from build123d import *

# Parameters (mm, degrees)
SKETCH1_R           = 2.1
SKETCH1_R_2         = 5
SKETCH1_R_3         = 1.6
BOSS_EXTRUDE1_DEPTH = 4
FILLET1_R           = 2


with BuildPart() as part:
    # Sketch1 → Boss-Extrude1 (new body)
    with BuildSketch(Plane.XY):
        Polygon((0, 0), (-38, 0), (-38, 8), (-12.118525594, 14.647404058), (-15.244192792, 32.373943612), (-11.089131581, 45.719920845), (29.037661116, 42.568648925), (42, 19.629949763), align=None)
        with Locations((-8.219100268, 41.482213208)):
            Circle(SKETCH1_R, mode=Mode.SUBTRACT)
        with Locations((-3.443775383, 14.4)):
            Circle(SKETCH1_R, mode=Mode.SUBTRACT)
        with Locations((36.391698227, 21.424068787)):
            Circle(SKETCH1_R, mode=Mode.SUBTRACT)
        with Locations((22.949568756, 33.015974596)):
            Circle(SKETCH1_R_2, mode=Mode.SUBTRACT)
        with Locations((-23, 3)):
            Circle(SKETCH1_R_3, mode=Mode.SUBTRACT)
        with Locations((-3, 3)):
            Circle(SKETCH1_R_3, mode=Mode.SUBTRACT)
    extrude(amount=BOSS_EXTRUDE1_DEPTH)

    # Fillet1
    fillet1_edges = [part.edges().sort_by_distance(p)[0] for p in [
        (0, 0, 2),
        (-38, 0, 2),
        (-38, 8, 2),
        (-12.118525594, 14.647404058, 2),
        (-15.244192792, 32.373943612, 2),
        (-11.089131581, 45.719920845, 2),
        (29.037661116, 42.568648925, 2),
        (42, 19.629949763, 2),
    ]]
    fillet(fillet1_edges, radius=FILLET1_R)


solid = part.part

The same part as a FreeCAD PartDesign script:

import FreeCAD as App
import Part
import Sketcher

V = App.Vector
Q = App.Units.Quantity


def edges_at(feature, points):
    """Names of the edges that pass closest to the given points."""
    edges = feature.Shape.Edges
    near = lambda p: min(range(len(edges)), key=lambda i: edges[i].distToShape(Part.Vertex(*p))[0])
    return sorted({f"Edge{near(p) + 1}" for p in points})

doc = App.newDocument("Part")
body = doc.addObject("PartDesign::Body", "Body")

# Sketch on XY plane
sketch1 = body.newObject("Sketcher::SketchObject", "Sketch")
sketch1.AttachmentSupport = (doc.getObject("XY_Plane"), [""])
sketch1.MapMode = "FlatFace"
sketch1.addGeometry(Part.LineSegment(V(-38, 0, 0), V(0, 0, 0)), False)
sketch1.addGeometry(Part.LineSegment(V(0, 0, 0), V(42, 19.6, 0)), False)
sketch1.addGeometry(Part.LineSegment(V(42, 19.6, 0), V(29, 42.6, 0)), False)
sketch1.addGeometry(Part.LineSegment(V(29, 42.6, 0), V(-11.1, 45.7, 0)), False)
sketch1.addGeometry(Part.LineSegment(V(-11.1, 45.7, 0), V(-15.2, 32.4, 0)), False)
sketch1.addGeometry(Part.LineSegment(V(-15.2, 32.4, 0), V(-12.1, 14.6, 0)), False)
sketch1.addGeometry(Part.LineSegment(V(-12.1, 14.6, 0), V(-38, 8, 0)), False)
sketch1.addGeometry(Part.LineSegment(V(-38, 8, 0), V(-38, 0, 0)), False)
sketch1.addGeometry(Part.Circle(V(36.4, 21.4, 0), V(0, 0, 1), 2.1), False)
sketch1.addGeometry(Part.Circle(V(-3, 3, 0), V(0, 0, 1), 1.6), False)
sketch1.addGeometry(Part.Circle(V(-23, 3, 0), V(0, 0, 1), 1.6), False)
sketch1.addGeometry(Part.Circle(V(-3.4, 14.4, 0), V(0, 0, 1), 2.1), False)
sketch1.addGeometry(Part.Circle(V(22.9, 33, 0), V(0, 0, 1), 5), False)
sketch1.addGeometry(Part.Circle(V(-8.2, 41.5, 0), V(0, 0, 1), 2.1), False)
sketch1.addConstraint(Sketcher.Constraint("Coincident", 0, 2, 1, 1))
sketch1.addConstraint(Sketcher.Constraint("Coincident", 1, 2, 2, 1))
sketch1.addConstraint(Sketcher.Constraint("Coincident", 2, 2, 3, 1))
sketch1.addConstraint(Sketcher.Constraint("Coincident", 3, 2, 4, 1))
sketch1.addConstraint(Sketcher.Constraint("Coincident", 4, 2, 5, 1))
sketch1.addConstraint(Sketcher.Constraint("Coincident", 5, 2, 6, 1))
sketch1.addConstraint(Sketcher.Constraint("Coincident", 6, 2, 7, 1))
sketch1.addConstraint(Sketcher.Constraint("Coincident", 7, 2, 0, 1))
sketch1.addConstraint(Sketcher.Constraint("Horizontal", 0))
sketch1.addConstraint(Sketcher.Constraint("Vertical", 7))
sketch1.addConstraint(Sketcher.Constraint("Coincident", 0, 2, -1, 1))
sketch1.addConstraint(Sketcher.Constraint("Equal", 9, 10))
sketch1.addConstraint(Sketcher.Constraint("Equal", 8, 11))
sketch1.addConstraint(Sketcher.Constraint("Equal", 11, 13))
sketch1.addConstraint(Sketcher.Constraint("Horizontal", 9, 3, 10, 3))
sketch1.addConstraint(Sketcher.Constraint("Diameter", 12, 10.0))
sketch1.addConstraint(Sketcher.Constraint("Diameter", 8, 4.2))
sketch1.addConstraint(Sketcher.Constraint("Diameter", 9, 3.2))
sketch1.addConstraint(Sketcher.Constraint("DistanceX", 0, 1, 0, 2, 38.0))
sketch1.addConstraint(Sketcher.Constraint("DistanceY", 7, 2, 7, 1, 8.0))
sketch1.addConstraint(Sketcher.Constraint("Angle", 5, Q("-80 deg")))
sketch1.addConstraint(Sketcher.Constraint("Distance", 5, 18.0))
sketch1.addConstraint(Sketcher.Constraint("DistanceX", 9, 3, -1, 1, 3.0))
sketch1.addConstraint(Sketcher.Constraint("DistanceY", -1, 1, 9, 3, 3.0))
sketch1.addConstraint(Sketcher.Constraint("DistanceX", 10, 3, -1, 1, 23.0))
sketch1.addConstraint(Sketcher.Constraint("DistanceX", -1, 1, 1, 2, 42.0))
sketch1.addConstraint(Sketcher.Constraint("DistanceY", -1, 1, 11, 3, 14.4))
sketch1.addConstraint(Sketcher.Constraint("DistanceX", -1, 1, 8, 3, 36.391698))
sketch1.addConstraint(Sketcher.Constraint("DistanceX", 13, 3, -1, 1, 8.2191))
sketch1.addConstraint(Sketcher.Constraint("DistanceY", 1, 2, 2, 2, 22.938699))
sketch1.addConstraint(Sketcher.Constraint("DistanceX", 3, 2, 12, 3, 34.0387))
sketch1.addConstraint(Sketcher.Constraint("Distance", 1, 46.36092))
sketch1.addConstraint(Sketcher.Constraint("Distance", 3, 40.250342))
sketch1.addConstraint(Sketcher.Constraint("DistanceY", -1, 1, 8, 3, 21.424069))
sketch1.addConstraint(Sketcher.Constraint("DistanceX", -1, 1, 12, 3, 22.949569))
sketch1.addConstraint(Sketcher.Constraint("DistanceX", -1, 1, 2, 2, 29.037661))
sketch1.addConstraint(Sketcher.Constraint("DistanceY", 12, 3, 13, 3, 8.466239))
sketch1.addConstraint(Sketcher.Constraint("DistanceY", 4, 2, 13, 3, 9.10827))
sketch1.addConstraint(Sketcher.Constraint("DistanceX", 4, 2, 3, 2, 4.155061))
sketch1.addConstraint(Sketcher.Constraint("DistanceX", 5, 2, 11, 3, 8.67475))
sketch1.addConstraint(Sketcher.Constraint("Distance", 4, 13.977827))
pad1 = body.newObject("PartDesign::Pad", "Pad")
pad1.Profile = sketch1
pad1.Length = 4
doc.recompute()

fillet = body.newObject("PartDesign::Fillet", "Fillet")
fillet.Base = (pad1, edges_at(pad1, [
    (0, 0, 2),
    (-38, 0, 2),
    (-38, 8, 2),
    (-12.119, 14.647, 2),
    (-15.244, 32.374, 2),
    (-11.089, 45.72, 2),
    (29.038, 42.569, 2),
    (42, 19.63, 2),
]))
fillet.Radius = 2

doc.recompute()
